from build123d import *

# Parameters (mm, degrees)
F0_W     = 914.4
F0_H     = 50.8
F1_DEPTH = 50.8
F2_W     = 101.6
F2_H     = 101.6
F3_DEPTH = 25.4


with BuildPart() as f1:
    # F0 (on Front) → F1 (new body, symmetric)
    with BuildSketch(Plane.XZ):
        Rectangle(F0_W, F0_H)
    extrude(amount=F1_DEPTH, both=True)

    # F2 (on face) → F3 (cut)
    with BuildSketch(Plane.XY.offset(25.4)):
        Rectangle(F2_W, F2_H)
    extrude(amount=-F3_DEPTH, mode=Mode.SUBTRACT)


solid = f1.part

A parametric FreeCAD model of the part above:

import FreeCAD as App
import Part
import Sketcher
Q = App.Units.Quantity


def add_polygon(sketch, points):
    """Adds a closed chain of lines whose ends are joined by coincident constraints."""
    first, n = sketch.GeometryCount, len(points)
    for a, b in zip(points, points[1:] + points[:1]):
        sketch.addGeometry(Part.LineSegment(App.Vector(*a, 0), App.Vector(*b, 0)), False)
    for i in range(n):
        sketch.addConstraint(Sketcher.Constraint("Coincident", first + i, 2, first + (i + 1) % n, 1))

doc = App.newDocument("Part")
body = doc.addObject("PartDesign::Body", "Body")

# Sketch on XZ plane
sketch1 = body.newObject("Sketcher::SketchObject", "Sketch")
sketch1.AttachmentSupport = (doc.getObject("XZ_Plane"), [""])
sketch1.MapMode = "FlatFace"
add_polygon(sketch1, [(-457.2, 25.4), (-457.2, -25.4), (457.2, -25.4), (457.2, 25.4)])  # lines 0-3
sketch1.addConstraint(Sketcher.Constraint("Vertical", 0))
sketch1.addConstraint(Sketcher.Constraint("Horizontal", 1))
sketch1.addConstraint(Sketcher.Constraint("Vertical", 2))
sketch1.addConstraint(Sketcher.Constraint("Horizontal", 3))
sketch1.addConstraint(Sketcher.Constraint("Symmetric", 0, 2, 2, 2, -1, 1))
sketch1.addConstraint(Sketcher.Constraint("DistanceX", 1, 1, 1, 2, Q("36 in")))
sketch1.addConstraint(Sketcher.Constraint("DistanceY", 0, 2, 0, 1, Q("2 in")))
pad1 = body.newObject("PartDesign::Pad", "Pad")
pad1.Profile = sketch1
pad1.Length = Q("4 in")
pad1.Midplane = True

# Sketch on XY plane
sketch2 = body.newObject("Sketcher::SketchObject", "Sketch001")
sketch2.AttachmentSupport = (doc.getObject("XY_Plane"), [""])
sketch2.MapMode = "FlatFace"
sketch2.AttachmentOffset = App.Placement(App.Vector(0, 0, 1 * 25.4), App.Rotation())
add_polygon(sketch2, [(-50.8, 50.8), (-50.8, -50.8), (50.8, -50.8), (50.8, 50.8)])  # lines 0-3
sketch2.addConstraint(Sketcher.Constraint("Vertical", 0))
sketch2.addConstraint(Sketcher.Constraint("Horizontal", 1))
sketch2.addConstraint(Sketcher.Constraint("Vertical", 2))
sketch2.addConstraint(Sketcher.Constraint("Horizontal", 3))
sketch2.addConstraint(Sketcher.Constraint("Symmetric", 0, 2, 2, 2, -1, 1))
sketch2.addConstraint(Sketcher.Constraint("Equal", 3, 0))
sketch2.addConstraint(Sketcher.Constraint("DistanceX", 1, 1, 1, 2, Q("4 in")))
pocket1 = body.newObject("PartDesign::Pocket", "Pocket")
pocket1.Profile = sketch2
pocket1.Length = Q("1 in")

doc.recompute()
